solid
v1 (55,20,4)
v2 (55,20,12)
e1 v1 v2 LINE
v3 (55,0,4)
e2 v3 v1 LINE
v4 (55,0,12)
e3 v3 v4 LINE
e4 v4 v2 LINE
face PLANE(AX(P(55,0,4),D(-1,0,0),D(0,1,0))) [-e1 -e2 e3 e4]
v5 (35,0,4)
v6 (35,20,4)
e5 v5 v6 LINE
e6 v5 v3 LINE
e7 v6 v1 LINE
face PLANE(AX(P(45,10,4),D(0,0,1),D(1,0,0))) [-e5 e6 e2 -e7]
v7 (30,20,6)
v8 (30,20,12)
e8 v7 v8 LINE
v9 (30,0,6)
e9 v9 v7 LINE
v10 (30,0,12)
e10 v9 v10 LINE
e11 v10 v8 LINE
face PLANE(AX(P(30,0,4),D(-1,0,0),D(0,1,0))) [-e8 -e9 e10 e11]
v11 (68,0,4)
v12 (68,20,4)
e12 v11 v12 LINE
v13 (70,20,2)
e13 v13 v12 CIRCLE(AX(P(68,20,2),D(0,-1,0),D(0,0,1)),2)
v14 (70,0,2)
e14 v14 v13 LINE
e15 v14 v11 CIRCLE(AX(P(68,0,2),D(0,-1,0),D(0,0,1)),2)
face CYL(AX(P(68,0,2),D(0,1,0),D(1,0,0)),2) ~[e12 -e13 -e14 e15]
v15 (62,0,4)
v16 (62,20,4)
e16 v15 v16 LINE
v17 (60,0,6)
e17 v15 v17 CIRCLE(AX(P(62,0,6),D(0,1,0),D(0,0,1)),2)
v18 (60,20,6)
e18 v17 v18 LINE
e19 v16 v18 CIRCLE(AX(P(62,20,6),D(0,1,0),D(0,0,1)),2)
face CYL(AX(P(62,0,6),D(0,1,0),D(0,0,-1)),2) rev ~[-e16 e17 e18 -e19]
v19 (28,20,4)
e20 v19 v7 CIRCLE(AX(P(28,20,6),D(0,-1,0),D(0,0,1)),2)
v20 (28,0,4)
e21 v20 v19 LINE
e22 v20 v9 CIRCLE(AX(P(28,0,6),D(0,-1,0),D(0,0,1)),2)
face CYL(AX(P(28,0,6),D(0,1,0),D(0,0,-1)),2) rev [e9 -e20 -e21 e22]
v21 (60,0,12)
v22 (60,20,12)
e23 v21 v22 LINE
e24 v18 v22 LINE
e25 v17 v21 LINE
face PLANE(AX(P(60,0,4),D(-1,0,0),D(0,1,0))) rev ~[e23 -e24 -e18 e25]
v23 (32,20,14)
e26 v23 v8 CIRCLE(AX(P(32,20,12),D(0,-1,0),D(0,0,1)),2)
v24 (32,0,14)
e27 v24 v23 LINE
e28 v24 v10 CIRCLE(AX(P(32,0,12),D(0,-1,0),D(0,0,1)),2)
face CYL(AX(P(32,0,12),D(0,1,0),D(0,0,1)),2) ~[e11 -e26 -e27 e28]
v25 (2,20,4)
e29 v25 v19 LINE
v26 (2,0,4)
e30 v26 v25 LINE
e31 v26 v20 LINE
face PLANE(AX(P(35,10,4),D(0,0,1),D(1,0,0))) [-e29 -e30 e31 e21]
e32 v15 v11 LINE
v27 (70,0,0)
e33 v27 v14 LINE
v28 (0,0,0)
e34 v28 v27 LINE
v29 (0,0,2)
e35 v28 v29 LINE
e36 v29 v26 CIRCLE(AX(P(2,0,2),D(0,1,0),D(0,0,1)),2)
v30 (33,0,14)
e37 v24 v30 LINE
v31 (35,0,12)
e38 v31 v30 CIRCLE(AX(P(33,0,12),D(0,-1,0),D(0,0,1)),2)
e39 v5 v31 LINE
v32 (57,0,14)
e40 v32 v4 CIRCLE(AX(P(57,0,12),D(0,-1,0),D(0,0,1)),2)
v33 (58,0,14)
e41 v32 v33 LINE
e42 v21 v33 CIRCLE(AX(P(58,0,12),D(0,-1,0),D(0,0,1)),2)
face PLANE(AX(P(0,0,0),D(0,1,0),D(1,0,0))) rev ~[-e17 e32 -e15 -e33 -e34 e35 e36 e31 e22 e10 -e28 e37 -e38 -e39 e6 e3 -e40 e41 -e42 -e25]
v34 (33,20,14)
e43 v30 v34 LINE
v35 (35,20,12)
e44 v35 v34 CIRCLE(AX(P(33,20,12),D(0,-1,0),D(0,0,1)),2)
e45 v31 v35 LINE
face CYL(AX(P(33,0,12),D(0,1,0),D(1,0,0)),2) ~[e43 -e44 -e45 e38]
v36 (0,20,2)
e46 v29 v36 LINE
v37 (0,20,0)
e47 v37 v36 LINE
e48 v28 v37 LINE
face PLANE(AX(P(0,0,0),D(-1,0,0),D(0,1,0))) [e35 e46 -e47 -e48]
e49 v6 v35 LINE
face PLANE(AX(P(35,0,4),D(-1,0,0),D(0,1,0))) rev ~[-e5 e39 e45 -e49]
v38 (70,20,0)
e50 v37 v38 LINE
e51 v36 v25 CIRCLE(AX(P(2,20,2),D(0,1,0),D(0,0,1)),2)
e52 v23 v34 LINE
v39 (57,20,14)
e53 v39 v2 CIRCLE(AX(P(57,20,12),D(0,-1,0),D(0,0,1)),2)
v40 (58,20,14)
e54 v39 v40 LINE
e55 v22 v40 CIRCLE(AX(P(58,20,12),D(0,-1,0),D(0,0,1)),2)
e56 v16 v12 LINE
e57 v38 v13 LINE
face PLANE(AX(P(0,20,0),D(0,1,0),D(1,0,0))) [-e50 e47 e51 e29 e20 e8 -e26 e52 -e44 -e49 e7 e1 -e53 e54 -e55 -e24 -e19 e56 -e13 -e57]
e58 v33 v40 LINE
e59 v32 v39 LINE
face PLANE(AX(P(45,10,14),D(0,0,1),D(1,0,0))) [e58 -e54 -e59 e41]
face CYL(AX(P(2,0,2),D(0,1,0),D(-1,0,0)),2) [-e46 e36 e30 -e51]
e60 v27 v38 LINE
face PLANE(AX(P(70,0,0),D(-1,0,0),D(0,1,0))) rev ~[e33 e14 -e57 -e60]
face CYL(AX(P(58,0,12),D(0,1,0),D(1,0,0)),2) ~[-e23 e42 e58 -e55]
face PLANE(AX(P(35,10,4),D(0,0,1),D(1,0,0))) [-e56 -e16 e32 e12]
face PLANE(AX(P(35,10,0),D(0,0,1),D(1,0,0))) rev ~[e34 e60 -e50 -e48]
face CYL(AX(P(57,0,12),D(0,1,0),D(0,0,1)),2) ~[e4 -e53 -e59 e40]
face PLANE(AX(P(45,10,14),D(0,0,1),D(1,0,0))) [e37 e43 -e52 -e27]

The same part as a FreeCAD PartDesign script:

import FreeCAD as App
import Part
import Sketcher

V = App.Vector
Q = App.Units.Quantity


def edges_at(feature, points):
    """Names of the edges that pass closest to the given points."""
    edges = feature.Shape.Edges
    near = lambda p: min(range(len(edges)), key=lambda i: edges[i].distToShape(Part.Vertex(*p))[0])
    return sorted({f"Edge{near(p) + 1}" for p in points})

doc = App.newDocument("Part")
body = doc.addObject("PartDesign::Body", "Body")

sketch1 = body.newObject("Sketcher::SketchObject", "Sketch")
sketch1.AttachmentSupport = (doc.getObject("XY_Plane"), [""])
sketch1.MapMode = "FlatFace"
sketch1.AttachmentOffset = App.Placement(V(0, 0, 4), App.Rotation())
sketch1.addGeometry(Part.LineSegment(V(35, 20, 0), V(35, 0, 0)), False)
sketch1.addGeometry(Part.LineSegment(V(35, 0, 0), V(55, 0, 0)), False)
sketch1.addGeometry(Part.LineSegment(V(55, 0, 0), V(55, 20, 0)), False)
sketch1.addGeometry(Part.LineSegment(V(55, 20, 0), V(35, 20, 0)), False)
sketch1.addConstraint(Sketcher.Constraint("Coincident", 0, 2, 1, 1))
sketch1.addConstraint(Sketcher.Constraint("Coincident", 1, 2, 2, 1))
sketch1.addConstraint(Sketcher.Constraint("Coincident", 2, 2, 3, 1))
sketch1.addConstraint(Sketcher.Constraint("Coincident", 3, 2, 0, 1))
sketch1.addConstraint(Sketcher.Constraint("Vertical", 0))
sketch1.addConstraint(Sketcher.Constraint("Horizontal", 1))
sketch1.addConstraint(Sketcher.Constraint("Vertical", 2))
sketch1.addConstraint(Sketcher.Constraint("Horizontal", 3))
sketch1.addConstraint(Sketcher.Constraint("PointOnObject", 0, 2, -1))
sketch1.addConstraint(Sketcher.Constraint("Equal", 3, 0))
sketch1.addConstraint(Sketcher.Constraint("DistanceX", 1, 1, 1, 2, Q("20 mm")))
sketch1.addConstraint(Sketcher.Constraint("DistanceX", -1, 1, 0, 2, Q("35 mm")))
pad1 = body.newObject("PartDesign::Pad", "Pad")
pad1.Profile = sketch1
pad1.Length = 10
body2 = doc.addObject("PartDesign::Body", "Body001")

sketch2 = body2.newObject("Sketcher::SketchObject", "Sketch001")
sketch2.AttachmentSupport = (doc.getObject("XY_Plane001"), [""])
sketch2.MapMode = "FlatFace"
sketch2.AttachmentOffset = App.Placement(V(0, 0, 4), App.Rotation())
sketch2.addGeometry(Part.LineSegment(V(30, 20, 0), V(30, 0, 0)), False)
sketch2.addGeometry(Part.LineSegment(V(30, 0, 0), V(60, 0, 0)), False)
sketch2.addGeometry(Part.LineSegment(V(60, 0, 0), V(60, 20, 0)), False)
sketch2.addGeometry(Part.LineSegment(V(60, 20, 0), V(30, 20, 0)), False)
sketch2.addConstraint(Sketcher.Constraint("Coincident", 0, 2, 1, 1))
sketch2.addConstraint(Sketcher.Constraint("Coincident", 1, 2, 2, 1))
sketch2.addConstraint(Sketcher.Constraint("Coincident", 2, 2, 3, 1))
sketch2.addConstraint(Sketcher.Constraint("Coincident", 3, 2, 0, 1))
sketch2.addConstraint(Sketcher.Constraint("Vertical", 0))
sketch2.addConstraint(Sketcher.Constraint("Horizontal", 1))
sketch2.addConstraint(Sketcher.Constraint("Vertical", 2))
sketch2.addConstraint(Sketcher.Constraint("Horizontal", 3))
sketch2.addConstraint(Sketcher.Constraint("PointOnObject", 0, 2, -1))
sketch2.addConstraint(Sketcher.Constraint("DistanceX", 1, 1, 1, 2, Q("30 mm")))
sketch2.addConstraint(Sketcher.Constraint("DistanceY", 0, 2, 0, 1, Q("20 mm")))
sketch2.addConstraint(Sketcher.Constraint("DistanceX", -1, 1, 0, 2, Q("30 mm")))
pad2 = body2.newObject("PartDesign::Pad", "Pad001")
pad2.Profile = sketch2
pad2.Length = 10
body3 = doc.addObject("PartDesign::Body", "Body002")

sketch3 = body3.newObject("Sketcher::SketchObject", "Sketch002")
sketch3.AttachmentSupport = (doc.getObject("XY_Plane002"), [""])
sketch3.MapMode = "FlatFace"
sketch3.addGeometry(Part.LineSegment(V(0, 20, 0), V(0, 0, 0)), False)
sketch3.addGeometry(Part.LineSegment(V(0, 0, 0), V(70, 0, 0)), False)
sketch3.addGeometry(Part.LineSegment(V(70, 0, 0), V(70, 20, 0)), False)
sketch3.addGeometry(Part.LineSegment(V(70, 20, 0), V(0, 20, 0)), False)
sketch3.addConstraint(Sketcher.Constraint("Coincident", 0, 2, 1, 1))
sketch3.addConstraint(Sketcher.Constraint("Coincident", 1, 2, 2, 1))
sketch3.addConstraint(Sketcher.Constraint("Coincident", 2, 2, 3, 1))
sketch3.addConstraint(Sketcher.Constraint("Coincident", 3, 2, 0, 1))
sketch3.addConstraint(Sketcher.Constraint("Vertical", 0))
sketch3.addConstraint(Sketcher.Constraint("Horizontal", 1))
sketch3.addConstraint(Sketcher.Constraint("Vertical", 2))
sketch3.addConstraint(Sketcher.Constraint("Horizontal", 3))
sketch3.addConstraint(Sketcher.Constraint("Coincident", 0, 2, -1, 1))
sketch3.addConstraint(Sketcher.Constraint("DistanceX", 1, 1, 1, 2, Q("70 mm")))
sketch3.addConstraint(Sketcher.Constraint("DistanceY", 0, 2, 0, 1, Q("20 mm")))
pad3 = body3.newObject("PartDesign::Pad", "Pad002")
pad3.Profile = sketch3
pad3.Length = 4
doc.recompute()

boolean = body3.newObject("PartDesign::Boolean", "Boolean")
boolean.Type = "Fuse"
boolean.addObjects([body2])
doc.recompute()

boolean2 = body3.newObject("PartDesign::Boolean", "Boolean001")
boolean2.Type = "Cut"
boolean2.addObjects([body])
doc.recompute()

fillet = body3.newObject("PartDesign::Fillet", "Fillet")
fillet.Base = (boolean2, edges_at(boolean2, [
    (0, 10, 4),
    (30, 10, 4),
    (70, 10, 4),
    (60, 10, 4),
    (30, 10, 14),
    (35, 10, 14),
    (55, 10, 14),
    (60, 10, 14),
]))
fillet.Radius = 2

doc.recompute()
